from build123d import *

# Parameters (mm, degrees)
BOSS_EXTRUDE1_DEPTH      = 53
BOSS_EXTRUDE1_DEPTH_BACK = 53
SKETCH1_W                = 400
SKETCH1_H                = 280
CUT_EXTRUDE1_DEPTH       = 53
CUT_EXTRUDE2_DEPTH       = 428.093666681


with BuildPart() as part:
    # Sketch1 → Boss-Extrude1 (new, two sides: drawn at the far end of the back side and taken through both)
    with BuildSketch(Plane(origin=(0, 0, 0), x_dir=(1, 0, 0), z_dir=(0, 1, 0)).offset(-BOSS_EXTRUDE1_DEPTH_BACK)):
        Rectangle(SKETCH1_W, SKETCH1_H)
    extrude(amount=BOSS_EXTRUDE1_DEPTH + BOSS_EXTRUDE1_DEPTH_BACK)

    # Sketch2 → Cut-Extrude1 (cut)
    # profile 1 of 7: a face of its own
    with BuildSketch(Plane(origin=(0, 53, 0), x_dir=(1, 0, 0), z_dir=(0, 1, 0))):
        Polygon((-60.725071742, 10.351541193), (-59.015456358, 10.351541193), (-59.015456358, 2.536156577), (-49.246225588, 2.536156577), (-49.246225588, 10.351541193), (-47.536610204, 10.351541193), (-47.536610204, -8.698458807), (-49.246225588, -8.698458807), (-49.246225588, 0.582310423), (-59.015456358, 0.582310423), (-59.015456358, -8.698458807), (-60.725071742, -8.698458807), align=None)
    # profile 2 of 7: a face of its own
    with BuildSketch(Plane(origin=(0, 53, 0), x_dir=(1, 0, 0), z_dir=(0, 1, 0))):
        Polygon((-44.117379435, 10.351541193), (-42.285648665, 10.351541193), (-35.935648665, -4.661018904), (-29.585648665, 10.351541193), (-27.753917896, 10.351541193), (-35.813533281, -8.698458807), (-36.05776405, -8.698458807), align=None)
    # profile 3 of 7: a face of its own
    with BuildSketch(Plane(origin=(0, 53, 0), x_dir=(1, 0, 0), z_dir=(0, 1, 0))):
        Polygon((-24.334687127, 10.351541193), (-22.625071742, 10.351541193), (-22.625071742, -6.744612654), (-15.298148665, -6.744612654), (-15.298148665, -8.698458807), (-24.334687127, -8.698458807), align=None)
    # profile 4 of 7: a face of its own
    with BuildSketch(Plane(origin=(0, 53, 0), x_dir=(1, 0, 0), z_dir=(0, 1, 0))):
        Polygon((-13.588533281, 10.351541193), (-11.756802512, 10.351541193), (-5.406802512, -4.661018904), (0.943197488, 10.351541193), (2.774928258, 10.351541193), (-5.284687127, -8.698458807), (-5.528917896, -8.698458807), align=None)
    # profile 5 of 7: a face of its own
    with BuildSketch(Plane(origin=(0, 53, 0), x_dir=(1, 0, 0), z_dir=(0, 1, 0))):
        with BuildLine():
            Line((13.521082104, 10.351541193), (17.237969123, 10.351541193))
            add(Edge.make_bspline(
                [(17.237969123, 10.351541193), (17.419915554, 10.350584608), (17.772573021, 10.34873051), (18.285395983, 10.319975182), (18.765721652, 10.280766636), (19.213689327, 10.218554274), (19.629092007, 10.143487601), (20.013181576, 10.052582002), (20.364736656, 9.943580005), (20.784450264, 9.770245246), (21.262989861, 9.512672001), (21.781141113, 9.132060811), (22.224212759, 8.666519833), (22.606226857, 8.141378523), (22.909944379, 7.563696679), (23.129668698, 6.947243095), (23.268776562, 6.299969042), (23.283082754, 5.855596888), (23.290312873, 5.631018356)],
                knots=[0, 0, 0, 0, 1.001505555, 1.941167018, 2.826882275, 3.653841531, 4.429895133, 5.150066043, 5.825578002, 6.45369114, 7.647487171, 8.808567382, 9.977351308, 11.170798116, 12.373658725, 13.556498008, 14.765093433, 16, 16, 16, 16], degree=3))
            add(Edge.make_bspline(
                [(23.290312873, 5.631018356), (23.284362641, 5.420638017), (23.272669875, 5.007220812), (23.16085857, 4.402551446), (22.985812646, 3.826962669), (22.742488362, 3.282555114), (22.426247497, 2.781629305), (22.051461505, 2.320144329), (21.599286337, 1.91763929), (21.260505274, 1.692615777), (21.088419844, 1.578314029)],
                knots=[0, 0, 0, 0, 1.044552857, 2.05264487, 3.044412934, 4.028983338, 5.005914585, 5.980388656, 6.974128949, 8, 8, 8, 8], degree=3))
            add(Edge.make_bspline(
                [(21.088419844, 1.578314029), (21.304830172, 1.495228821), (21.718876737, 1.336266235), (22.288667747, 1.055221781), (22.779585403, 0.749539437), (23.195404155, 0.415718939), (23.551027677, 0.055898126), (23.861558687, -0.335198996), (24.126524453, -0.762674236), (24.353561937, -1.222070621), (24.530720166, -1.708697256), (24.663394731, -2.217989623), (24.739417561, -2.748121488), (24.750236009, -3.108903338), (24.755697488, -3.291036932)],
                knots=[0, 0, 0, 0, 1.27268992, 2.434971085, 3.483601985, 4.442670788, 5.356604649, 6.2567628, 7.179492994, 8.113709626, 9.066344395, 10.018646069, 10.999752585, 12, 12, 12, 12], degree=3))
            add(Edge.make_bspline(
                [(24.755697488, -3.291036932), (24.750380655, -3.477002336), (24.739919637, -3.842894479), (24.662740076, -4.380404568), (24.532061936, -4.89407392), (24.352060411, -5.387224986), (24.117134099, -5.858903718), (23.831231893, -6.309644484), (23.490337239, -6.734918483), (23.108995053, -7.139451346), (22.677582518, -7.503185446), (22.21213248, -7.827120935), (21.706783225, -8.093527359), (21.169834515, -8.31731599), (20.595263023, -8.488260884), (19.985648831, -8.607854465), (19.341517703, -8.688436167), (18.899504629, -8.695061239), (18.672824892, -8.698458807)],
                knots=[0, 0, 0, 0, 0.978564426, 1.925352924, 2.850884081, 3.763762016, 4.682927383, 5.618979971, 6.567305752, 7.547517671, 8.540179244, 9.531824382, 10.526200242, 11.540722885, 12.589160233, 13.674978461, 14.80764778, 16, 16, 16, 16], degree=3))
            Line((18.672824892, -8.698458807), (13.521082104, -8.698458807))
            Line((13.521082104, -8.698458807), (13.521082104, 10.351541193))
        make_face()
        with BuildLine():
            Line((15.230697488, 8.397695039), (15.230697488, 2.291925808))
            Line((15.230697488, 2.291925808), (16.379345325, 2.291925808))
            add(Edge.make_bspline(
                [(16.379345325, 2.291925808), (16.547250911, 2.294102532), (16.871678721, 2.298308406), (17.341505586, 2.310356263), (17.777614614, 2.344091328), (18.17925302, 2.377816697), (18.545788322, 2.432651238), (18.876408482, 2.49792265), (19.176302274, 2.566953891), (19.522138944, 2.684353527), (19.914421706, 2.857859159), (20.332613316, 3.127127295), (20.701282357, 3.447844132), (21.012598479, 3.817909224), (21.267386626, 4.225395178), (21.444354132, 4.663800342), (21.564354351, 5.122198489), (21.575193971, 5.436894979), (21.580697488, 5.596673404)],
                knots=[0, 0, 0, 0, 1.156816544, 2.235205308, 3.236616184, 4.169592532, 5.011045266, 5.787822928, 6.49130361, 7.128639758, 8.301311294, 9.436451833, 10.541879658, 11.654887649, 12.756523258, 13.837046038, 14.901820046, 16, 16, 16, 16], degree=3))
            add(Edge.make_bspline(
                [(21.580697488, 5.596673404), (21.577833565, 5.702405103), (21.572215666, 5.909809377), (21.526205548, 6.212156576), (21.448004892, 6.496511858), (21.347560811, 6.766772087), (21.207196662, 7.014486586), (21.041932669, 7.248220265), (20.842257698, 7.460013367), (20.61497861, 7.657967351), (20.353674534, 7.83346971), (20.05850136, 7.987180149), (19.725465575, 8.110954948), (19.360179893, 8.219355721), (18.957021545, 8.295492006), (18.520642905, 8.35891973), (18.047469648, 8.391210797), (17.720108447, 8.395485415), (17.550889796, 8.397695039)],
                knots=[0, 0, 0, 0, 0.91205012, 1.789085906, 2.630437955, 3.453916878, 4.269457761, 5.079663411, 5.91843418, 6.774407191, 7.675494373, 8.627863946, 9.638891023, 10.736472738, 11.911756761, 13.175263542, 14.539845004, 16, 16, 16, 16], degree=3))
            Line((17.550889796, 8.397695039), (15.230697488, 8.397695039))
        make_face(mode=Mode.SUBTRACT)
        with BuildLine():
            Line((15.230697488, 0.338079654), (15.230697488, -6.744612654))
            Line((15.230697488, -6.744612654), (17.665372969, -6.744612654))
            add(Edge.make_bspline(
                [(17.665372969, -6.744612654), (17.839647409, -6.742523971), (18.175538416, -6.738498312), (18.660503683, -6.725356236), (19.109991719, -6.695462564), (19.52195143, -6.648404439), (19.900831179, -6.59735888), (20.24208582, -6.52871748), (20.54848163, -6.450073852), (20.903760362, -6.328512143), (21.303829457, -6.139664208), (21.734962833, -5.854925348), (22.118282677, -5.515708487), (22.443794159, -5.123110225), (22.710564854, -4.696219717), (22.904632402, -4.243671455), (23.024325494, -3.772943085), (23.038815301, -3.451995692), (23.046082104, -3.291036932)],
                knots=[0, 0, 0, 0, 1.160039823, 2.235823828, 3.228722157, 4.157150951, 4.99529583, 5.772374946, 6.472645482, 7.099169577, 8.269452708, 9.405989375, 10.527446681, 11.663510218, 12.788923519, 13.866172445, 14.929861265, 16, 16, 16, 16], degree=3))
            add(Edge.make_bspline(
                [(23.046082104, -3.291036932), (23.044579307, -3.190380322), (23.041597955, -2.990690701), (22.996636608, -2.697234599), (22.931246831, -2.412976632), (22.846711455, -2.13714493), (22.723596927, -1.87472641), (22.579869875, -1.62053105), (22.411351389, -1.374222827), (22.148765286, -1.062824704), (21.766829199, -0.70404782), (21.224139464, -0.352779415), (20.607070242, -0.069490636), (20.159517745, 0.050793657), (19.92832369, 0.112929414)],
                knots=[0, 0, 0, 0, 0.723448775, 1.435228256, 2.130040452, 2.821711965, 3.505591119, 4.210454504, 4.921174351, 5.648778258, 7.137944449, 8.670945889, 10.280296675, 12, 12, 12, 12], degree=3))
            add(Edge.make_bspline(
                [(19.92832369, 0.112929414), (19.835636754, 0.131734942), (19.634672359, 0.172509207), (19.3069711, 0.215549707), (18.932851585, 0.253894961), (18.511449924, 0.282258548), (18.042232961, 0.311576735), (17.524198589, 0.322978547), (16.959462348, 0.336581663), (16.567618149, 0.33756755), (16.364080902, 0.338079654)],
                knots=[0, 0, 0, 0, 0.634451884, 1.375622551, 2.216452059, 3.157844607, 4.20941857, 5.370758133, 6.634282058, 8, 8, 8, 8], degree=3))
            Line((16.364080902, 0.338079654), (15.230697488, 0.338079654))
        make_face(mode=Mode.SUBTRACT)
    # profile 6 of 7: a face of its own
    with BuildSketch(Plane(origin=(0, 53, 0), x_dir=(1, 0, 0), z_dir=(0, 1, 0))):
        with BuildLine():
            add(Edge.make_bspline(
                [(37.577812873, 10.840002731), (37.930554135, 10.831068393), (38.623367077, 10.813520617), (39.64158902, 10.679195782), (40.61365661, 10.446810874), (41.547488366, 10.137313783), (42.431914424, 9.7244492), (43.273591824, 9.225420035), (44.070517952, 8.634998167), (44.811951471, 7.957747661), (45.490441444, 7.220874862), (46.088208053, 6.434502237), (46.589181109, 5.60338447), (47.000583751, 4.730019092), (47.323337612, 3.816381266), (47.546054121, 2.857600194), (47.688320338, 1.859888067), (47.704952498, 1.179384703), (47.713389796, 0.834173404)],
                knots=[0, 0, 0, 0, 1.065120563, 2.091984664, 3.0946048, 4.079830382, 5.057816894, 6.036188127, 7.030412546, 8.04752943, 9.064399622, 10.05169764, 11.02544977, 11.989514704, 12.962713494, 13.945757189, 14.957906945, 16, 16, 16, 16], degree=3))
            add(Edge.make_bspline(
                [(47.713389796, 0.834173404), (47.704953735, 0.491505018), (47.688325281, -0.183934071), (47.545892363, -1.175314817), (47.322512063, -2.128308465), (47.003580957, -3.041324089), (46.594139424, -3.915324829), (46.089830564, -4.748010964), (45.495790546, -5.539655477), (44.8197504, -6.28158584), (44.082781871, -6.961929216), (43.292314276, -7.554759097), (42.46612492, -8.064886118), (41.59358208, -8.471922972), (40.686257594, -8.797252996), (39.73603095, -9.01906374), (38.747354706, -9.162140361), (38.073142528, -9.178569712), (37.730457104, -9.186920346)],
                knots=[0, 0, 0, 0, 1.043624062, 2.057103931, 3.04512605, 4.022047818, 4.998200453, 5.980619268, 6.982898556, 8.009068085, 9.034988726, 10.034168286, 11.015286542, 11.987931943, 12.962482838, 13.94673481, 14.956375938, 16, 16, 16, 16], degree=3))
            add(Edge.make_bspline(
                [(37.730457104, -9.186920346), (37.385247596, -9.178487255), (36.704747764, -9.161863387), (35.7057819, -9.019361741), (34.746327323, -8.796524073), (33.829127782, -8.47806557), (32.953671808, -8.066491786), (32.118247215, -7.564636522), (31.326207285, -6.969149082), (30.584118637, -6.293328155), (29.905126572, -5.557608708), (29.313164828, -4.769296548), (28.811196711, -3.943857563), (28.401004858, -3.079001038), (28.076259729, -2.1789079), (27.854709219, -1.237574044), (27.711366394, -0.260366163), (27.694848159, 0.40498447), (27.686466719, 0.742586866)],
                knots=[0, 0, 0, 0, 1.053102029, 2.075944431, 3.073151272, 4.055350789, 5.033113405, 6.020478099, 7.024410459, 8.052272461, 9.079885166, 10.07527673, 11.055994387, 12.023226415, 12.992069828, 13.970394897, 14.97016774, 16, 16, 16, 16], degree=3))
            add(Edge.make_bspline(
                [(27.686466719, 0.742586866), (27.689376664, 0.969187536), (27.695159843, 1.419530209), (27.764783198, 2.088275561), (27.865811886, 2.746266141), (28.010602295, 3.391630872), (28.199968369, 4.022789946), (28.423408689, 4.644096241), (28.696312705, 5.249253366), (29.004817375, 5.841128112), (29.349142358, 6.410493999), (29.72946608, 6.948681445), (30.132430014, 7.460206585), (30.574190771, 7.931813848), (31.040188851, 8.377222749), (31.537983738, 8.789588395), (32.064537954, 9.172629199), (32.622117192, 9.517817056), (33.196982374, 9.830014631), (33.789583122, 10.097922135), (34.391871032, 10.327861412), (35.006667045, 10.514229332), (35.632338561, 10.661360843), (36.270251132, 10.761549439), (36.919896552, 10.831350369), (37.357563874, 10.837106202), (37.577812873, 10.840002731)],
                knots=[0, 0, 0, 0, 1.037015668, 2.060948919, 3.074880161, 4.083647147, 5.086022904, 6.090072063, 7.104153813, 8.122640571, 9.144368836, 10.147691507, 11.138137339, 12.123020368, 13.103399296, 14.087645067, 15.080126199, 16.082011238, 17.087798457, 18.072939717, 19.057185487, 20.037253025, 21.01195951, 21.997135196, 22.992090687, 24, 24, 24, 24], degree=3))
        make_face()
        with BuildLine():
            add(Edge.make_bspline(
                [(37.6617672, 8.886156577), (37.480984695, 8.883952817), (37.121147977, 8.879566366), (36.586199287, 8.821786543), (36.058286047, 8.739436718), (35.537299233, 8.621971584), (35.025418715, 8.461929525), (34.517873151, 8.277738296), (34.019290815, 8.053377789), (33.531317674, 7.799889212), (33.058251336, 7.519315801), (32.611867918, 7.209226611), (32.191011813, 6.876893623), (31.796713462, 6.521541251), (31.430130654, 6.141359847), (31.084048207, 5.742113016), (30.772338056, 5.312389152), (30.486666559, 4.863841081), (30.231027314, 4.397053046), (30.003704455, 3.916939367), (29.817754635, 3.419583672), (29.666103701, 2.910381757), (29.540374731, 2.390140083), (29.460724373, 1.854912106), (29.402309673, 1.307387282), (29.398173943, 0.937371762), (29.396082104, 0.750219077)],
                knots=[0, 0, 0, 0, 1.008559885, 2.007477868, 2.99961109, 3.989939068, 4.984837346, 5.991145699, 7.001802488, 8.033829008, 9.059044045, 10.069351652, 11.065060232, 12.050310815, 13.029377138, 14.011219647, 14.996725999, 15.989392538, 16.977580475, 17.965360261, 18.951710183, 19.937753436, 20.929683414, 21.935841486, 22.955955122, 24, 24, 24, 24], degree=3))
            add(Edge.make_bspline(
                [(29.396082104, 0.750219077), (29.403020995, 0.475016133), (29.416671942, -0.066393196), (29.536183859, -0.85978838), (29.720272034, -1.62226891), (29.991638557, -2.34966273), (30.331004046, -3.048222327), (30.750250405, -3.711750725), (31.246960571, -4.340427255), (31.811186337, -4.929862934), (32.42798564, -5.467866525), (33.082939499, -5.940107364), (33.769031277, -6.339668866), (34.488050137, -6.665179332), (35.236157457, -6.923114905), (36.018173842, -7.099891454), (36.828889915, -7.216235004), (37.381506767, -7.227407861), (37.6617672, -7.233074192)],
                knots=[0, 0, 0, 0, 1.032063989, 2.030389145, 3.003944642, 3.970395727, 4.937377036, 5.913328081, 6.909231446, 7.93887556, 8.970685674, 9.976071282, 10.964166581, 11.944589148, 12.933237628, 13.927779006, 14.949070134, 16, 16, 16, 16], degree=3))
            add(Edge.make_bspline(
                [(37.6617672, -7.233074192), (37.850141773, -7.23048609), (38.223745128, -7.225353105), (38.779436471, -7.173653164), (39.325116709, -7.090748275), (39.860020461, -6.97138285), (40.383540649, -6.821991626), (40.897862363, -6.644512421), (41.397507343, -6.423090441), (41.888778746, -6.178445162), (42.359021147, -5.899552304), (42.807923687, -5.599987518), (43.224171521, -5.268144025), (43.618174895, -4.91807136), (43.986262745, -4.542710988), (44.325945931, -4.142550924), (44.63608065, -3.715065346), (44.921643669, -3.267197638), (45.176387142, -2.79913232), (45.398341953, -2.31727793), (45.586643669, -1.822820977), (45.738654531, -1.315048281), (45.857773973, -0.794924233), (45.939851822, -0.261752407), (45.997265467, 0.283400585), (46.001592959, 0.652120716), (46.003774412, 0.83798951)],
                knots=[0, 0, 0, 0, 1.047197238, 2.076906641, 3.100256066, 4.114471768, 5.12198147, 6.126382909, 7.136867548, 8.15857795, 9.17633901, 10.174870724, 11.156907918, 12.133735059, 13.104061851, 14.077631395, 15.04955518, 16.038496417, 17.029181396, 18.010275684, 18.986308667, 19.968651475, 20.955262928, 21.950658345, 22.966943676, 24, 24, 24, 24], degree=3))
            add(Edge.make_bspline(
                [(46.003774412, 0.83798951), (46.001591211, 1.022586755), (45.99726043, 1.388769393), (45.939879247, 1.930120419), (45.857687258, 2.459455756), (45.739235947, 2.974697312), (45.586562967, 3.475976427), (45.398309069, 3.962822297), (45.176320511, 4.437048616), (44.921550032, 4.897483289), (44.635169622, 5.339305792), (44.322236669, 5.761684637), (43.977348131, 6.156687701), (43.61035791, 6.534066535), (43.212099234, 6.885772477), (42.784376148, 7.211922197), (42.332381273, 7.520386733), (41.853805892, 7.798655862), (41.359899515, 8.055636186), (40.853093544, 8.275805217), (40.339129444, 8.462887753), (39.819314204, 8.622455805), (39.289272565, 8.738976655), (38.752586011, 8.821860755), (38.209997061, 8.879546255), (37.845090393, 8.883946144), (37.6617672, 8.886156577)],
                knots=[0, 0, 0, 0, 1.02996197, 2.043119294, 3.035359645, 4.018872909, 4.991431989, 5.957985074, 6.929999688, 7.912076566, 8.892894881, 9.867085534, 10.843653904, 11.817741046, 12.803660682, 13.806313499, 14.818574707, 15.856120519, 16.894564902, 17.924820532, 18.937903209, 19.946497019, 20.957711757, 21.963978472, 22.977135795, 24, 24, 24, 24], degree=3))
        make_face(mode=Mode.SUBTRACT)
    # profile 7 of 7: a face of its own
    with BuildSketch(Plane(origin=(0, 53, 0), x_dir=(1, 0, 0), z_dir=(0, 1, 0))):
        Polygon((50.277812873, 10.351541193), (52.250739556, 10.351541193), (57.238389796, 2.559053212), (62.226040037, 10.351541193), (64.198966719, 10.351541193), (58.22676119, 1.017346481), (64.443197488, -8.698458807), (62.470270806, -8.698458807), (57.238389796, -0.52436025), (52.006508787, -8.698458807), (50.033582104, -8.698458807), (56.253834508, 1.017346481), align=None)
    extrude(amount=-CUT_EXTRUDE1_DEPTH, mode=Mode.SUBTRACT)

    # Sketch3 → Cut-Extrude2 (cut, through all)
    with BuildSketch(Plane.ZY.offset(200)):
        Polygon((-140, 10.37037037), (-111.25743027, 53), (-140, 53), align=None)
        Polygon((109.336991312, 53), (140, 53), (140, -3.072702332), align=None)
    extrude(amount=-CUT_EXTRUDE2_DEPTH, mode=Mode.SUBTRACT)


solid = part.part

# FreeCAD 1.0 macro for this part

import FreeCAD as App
import Part
import Sketcher
from FreeCAD import Vector
Q = App.Units.Quantity


def add_polygon(sketch, points):
    """Adds a closed chain of lines whose ends are joined by coincident constraints."""
    first, n = sketch.GeometryCount, len(points)
    for a, b in zip(points, points[1:] + points[:1]):
        sketch.addGeometry(Part.LineSegment(App.Vector(*a, 0), App.Vector(*b, 0)), False)
    for i in range(n):
        sketch.addConstraint(Sketcher.Constraint("Coincident", first + i, 2, first + (i + 1) % n, 1))

doc = App.newDocument("Part")
body = doc.addObject("PartDesign::Body", "Body")

# Sketch on XZ plane
sketch1 = body.newObject("Sketcher::SketchObject", "Sketch")
sketch1.AttachmentSupport = (doc.getObject("XZ_Plane"), [""])
sketch1.MapMode = "FlatFace"
add_polygon(sketch1, [(-200, -140), (-200, 140), (200, 140), (200, -140)])  # lines 0-3
sketch1.addConstraint([
    Sketcher.Constraint("Vertical", 0),
    Sketcher.Constraint("Horizontal", 1),
    Sketcher.Constraint("Vertical", 2),
    Sketcher.Constraint("Horizontal", 3),
    Sketcher.Constraint("Symmetric", 0, 2, 2, 2, -1, 1),
    Sketcher.Constraint("DistanceX", 1, 1, 1, 2, Q("400 mm")),
    Sketcher.Constraint("DistanceY", 0, 1, 0, 2, Q("280 mm")),
])
pad1 = body.newObject("PartDesign::Pad", "Pad")
pad1.Profile = sketch1
pad1.Type = "TwoLengths"
pad1.Length = 53
pad1.Length2 = 53
pad1.Reversed = True

# Sketch on XZ plane
sketch2 = body.newObject("Sketcher::SketchObject", "Sketch001")
sketch2.AttachmentSupport = (doc.getObject("XZ_Plane"), [""])
sketch2.MapMode = "FlatFace"
sketch2.AttachmentOffset = App.Placement(Vector(0, 0, -53), App.Rotation())
add_polygon(sketch2, [(-59.015456, -10.351541), (-60.725072, -10.351541), (-60.725072, 8.698459), (-59.015456, 8.698459), (-59.015456, -0.58231), (-49.246226, -0.58231), (-49.246226, 8.698459), (-47.53661, 8.698459), (-47.53661, -10.351541), (-49.246226, -10.351541), (-49.246226, -2.536157), (-59.015456, -2.536157)])  # lines 0-11
add_polygon(sketch2, [(-42.285649, -10.351541), (-44.117379, -10.351541), (-36.057764, 8.698459), (-35.813533, 8.698459), (-27.753918, -10.351541), (-29.585649, -10.351541), (-35.935649, 4.661019)])  # lines 12-18
add_polygon(sketch2, [(-22.625072, -10.351541), (-24.334687, -10.351541), (-24.334687, 8.698459), (-15.298149, 8.698459), (-15.298149, 6.744613), (-22.625072, 6.744613)])  # lines 19-24
add_polygon(sketch2, [(-11.756803, -10.351541), (-13.588533, -10.351541), (-5.528918, 8.698459), (-5.284687, 8.698459), (2.774928, -10.351541), (0.943197, -10.351541), (-5.406803, 4.661019)])  # lines 25-31
sketch2.addGeometry(Part.LineSegment(Vector(17.237969, -10.351541, 0), Vector(13.521082, -10.351541, 0)), False)  # 32
sketch2.addGeometry(Part.LineSegment(Vector(13.521082, -10.351541, 0), Vector(13.521082, 8.698459, 0)), False)  # 33
sketch2.addGeometry(Part.LineSegment(Vector(13.521082, 8.698459, 0), Vector(18.672825, 8.698459, 0)), False)  # 34
sketch2.addGeometry(Part.BSplineCurve([Vector(24.755697, 3.291037, 0), Vector(24.750381, 3.477002, 0), Vector(24.73992, 3.842894, 0), Vector(24.66274, 4.380405, 0), Vector(24.532062, 4.894074, 0), Vector(24.35206, 5.387225, 0), Vector(24.117134, 5.858904, 0), Vector(23.831232, 6.309644, 0), Vector(23.490337, 6.734918, 0), Vector(23.108995, 7.139451, 0), Vector(22.677583, 7.503185, 0), Vector(22.212132, 7.827121, 0), Vector(21.706783, 8.093527, 0), Vector(21.169835, 8.317316, 0), Vector(20.595263, 8.488261, 0), Vector(19.985649, 8.607854, 0), Vector(19.341518, 8.688436, 0), Vector(18.899505, 8.695061, 0), Vector(18.672825, 8.698459, 0)], [4, 1, 1, 1, 1, 1, 1, 1, 1, 1, 1, 1, 1, 1, 1, 1, 4], [0, 0.978564426, 1.925352924, 2.850884081, 3.763762016, 4.682927383, 5.618979971, 6.567305752, 7.547517671, 8.540179244, 9.531824382, 10.526200242, 11.540722885, 12.589160233, 13.674978461, 14.80764778, 16], False, 3, [1, 1, 1, 1, 1, 1, 1, 1, 1, 1, 1, 1, 1, 1, 1, 1, 1, 1, 1], False), False)  # 35
sketch2.addGeometry(Part.BSplineCurve([Vector(21.08842, -1.578314, 0), Vector(21.30483, -1.495229, 0), Vector(21.718877, -1.336266, 0), Vector(22.288668, -1.055222, 0), Vector(22.779585, -0.749539, 0), Vector(23.195404, -0.415719, 0), Vector(23.551028, -0.055898, 0), Vector(23.861559, 0.335199, 0), Vector(24.126524, 0.762674, 0), Vector(24.353562, 1.222071, 0), Vector(24.53072, 1.708697, 0), Vector(24.663395, 2.21799, 0), Vector(24.739418, 2.748121, 0), Vector(24.750236, 3.108903, 0), Vector(24.755697, 3.291037, 0)], [4, 1, 1, 1, 1, 1, 1, 1, 1, 1, 1, 1, 4], [0, 1.27268992, 2.434971085, 3.483601985, 4.442670788, 5.356604649, 6.2567628, 7.179492994, 8.113709626, 9.066344395, 10.018646069, 10.999752585, 12], False, 3, [1, 1, 1, 1, 1, 1, 1, 1, 1, 1, 1, 1, 1, 1, 1], False), False)  # 36
sketch2.addGeometry(Part.BSplineCurve([Vector(23.290313, -5.631018, 0), Vector(23.284363, -5.420638, 0), Vector(23.27267, -5.007221, 0), Vector(23.160859, -4.402551, 0), Vector(22.985813, -3.826963, 0), Vector(22.742488, -3.282555, 0), Vector(22.426247, -2.781629, 0), Vector(22.051462, -2.320144, 0), Vector(21.599286, -1.917639, 0), Vector(21.260505, -1.692616, 0), Vector(21.08842, -1.578314, 0)], [4, 1, 1, 1, 1, 1, 1, 1, 4], [0, 1.044552857, 2.05264487, 3.044412934, 4.028983338, 5.005914585, 5.980388656, 6.974128949, 8], False, 3, [1, 1, 1, 1, 1, 1, 1, 1, 1, 1, 1], False), False)  # 37
sketch2.addGeometry(Part.BSplineCurve([Vector(17.237969, -10.351541, 0), Vector(17.419916, -10.350585, 0), Vector(17.772573, -10.348731, 0), Vector(18.285396, -10.319975, 0), Vector(18.765722, -10.280767, 0), Vector(19.213689, -10.218554, 0), Vector(19.629092, -10.143488, 0), Vector(20.013182, -10.052582, 0), Vector(20.364737, -9.94358, 0), Vector(20.78445, -9.770245, 0), Vector(21.26299, -9.512672, 0), Vector(21.781141, -9.132061, 0), Vector(22.224213, -8.66652, 0), Vector(22.606227, -8.141379, 0), Vector(22.909944, -7.563697, 0), Vector(23.129669, -6.947243, 0), Vector(23.268777, -6.299969, 0), Vector(23.283083, -5.855597, 0), Vector(23.290313, -5.631018, 0)], [4, 1, 1, 1, 1, 1, 1, 1, 1, 1, 1, 1, 1, 1, 1, 1, 4], [0, 1.001505555, 1.941167018, 2.826882275, 3.653841531, 4.429895133, 5.150066043, 5.825578002, 6.45369114, 7.647487171, 8.808567382, 9.977351308, 11.170798116, 12.373658725, 13.556498008, 14.765093433, 16], False, 3, [1, 1, 1, 1, 1, 1, 1, 1, 1, 1, 1, 1, 1, 1, 1, 1, 1, 1, 1], False), False)  # 38
sketch2.addGeometry(Part.LineSegment(Vector(15.230697, -0.33808, 0), Vector(16.364081, -0.33808, 0)), False)  # 39
sketch2.addGeometry(Part.BSplineCurve([Vector(19.928324, -0.112929, 0), Vector(19.835637, -0.131735, 0), Vector(19.634672, -0.172509, 0), Vector(19.306971, -0.21555, 0), Vector(18.932852, -0.253895, 0), Vector(18.51145, -0.282259, 0), Vector(18.042233, -0.311577, 0), Vector(17.524199, -0.322979, 0), Vector(16.959462, -0.336582, 0), Vector(16.567618, -0.337568, 0), Vector(16.364081, -0.33808, 0)], [4, 1, 1, 1, 1, 1, 1, 1, 4], [0, 0.634451884, 1.375622551, 2.216452059, 3.157844607, 4.20941857, 5.370758133, 6.634282058, 8], False, 3, [1, 1, 1, 1, 1, 1, 1, 1, 1, 1, 1], False), False)  # 40
sketch2.addGeometry(Part.BSplineCurve([Vector(23.046082, 3.291037, 0), Vector(23.044579, 3.19038, 0), Vector(23.041598, 2.990691, 0), Vector(22.996637, 2.697235, 0), Vector(22.931247, 2.412977, 0), Vector(22.846711, 2.137145, 0), Vector(22.723597, 1.874726, 0), Vector(22.57987, 1.620531, 0), Vector(22.411351, 1.374223, 0), Vector(22.148765, 1.062825, 0), Vector(21.766829, 0.704048, 0), Vector(21.224139, 0.352779, 0), Vector(20.60707, 0.069491, 0), Vector(20.159518, -0.050794, 0), Vector(19.928324, -0.112929, 0)], [4, 1, 1, 1, 1, 1, 1, 1, 1, 1, 1, 1, 4], [0, 0.723448775, 1.435228256, 2.130040452, 2.821711965, 3.505591119, 4.210454504, 4.921174351, 5.648778258, 7.137944449, 8.670945889, 10.280296675, 12], False, 3, [1, 1, 1, 1, 1, 1, 1, 1, 1, 1, 1, 1, 1, 1, 1], False), False)  # 41
sketch2.addGeometry(Part.BSplineCurve([Vector(17.665373, 6.744613, 0), Vector(17.839647, 6.742524, 0), Vector(18.175538, 6.738498, 0), Vector(18.660504, 6.725356, 0), Vector(19.109992, 6.695463, 0), Vector(19.521951, 6.648404, 0), Vector(19.900831, 6.597359, 0), Vector(20.242086, 6.528717, 0), Vector(20.548482, 6.450074, 0), Vector(20.90376, 6.328512, 0), Vector(21.303829, 6.139664, 0), Vector(21.734963, 5.854925, 0), Vector(22.118283, 5.515708, 0), Vector(22.443794, 5.12311, 0), Vector(22.710565, 4.69622, 0), Vector(22.904632, 4.243671, 0), Vector(23.024325, 3.772943, 0), Vector(23.038815, 3.451996, 0), Vector(23.046082, 3.291037, 0)], [4, 1, 1, 1, 1, 1, 1, 1, 1, 1, 1, 1, 1, 1, 1, 1, 4], [0, 1.160039823, 2.235823828, 3.228722157, 4.157150951, 4.99529583, 5.772374946, 6.472645482, 7.099169577, 8.269452708, 9.405989375, 10.527446681, 11.663510218, 12.788923519, 13.866172445, 14.929861265, 16], False, 3, [1, 1, 1, 1, 1, 1, 1, 1, 1, 1, 1, 1, 1, 1, 1, 1, 1, 1, 1], False), False)  # 42
sketch2.addGeometry(Part.LineSegment(Vector(17.665373, 6.744613, 0), Vector(15.230697, 6.744613, 0)), False)  # 43
sketch2.addGeometry(Part.LineSegment(Vector(15.230697, 6.744613, 0), Vector(15.230697, -0.33808, 0)), False)  # 44
sketch2.addGeometry(Part.LineSegment(Vector(15.230697, -8.397695, 0), Vector(17.55089, -8.397695, 0)), False)  # 45
sketch2.addGeometry(Part.BSplineCurve([Vector(21.580697, -5.596673, 0), Vector(21.577834, -5.702405, 0), Vector(21.572216, -5.909809, 0), Vector(21.526206, -6.212157, 0), Vector(21.448005, -6.496512, 0), Vector(21.347561, -6.766772, 0), Vector(21.207197, -7.014487, 0), Vector(21.041933, -7.24822, 0), Vector(20.842258, -7.460013, 0), Vector(20.614979, -7.657967, 0), Vector(20.353675, -7.83347, 0), Vector(20.058501, -7.98718, 0), Vector(19.725466, -8.110955, 0), Vector(19.36018, -8.219356, 0), Vector(18.957022, -8.295492, 0), Vector(18.520643, -8.35892, 0), Vector(18.04747, -8.391211, 0), Vector(17.720108, -8.395485, 0), Vector(17.55089, -8.397695, 0)], [4, 1, 1, 1, 1, 1, 1, 1, 1, 1, 1, 1, 1, 1, 1, 1, 4], [0, 0.91205012, 1.789085906, 2.630437955, 3.453916878, 4.269457761, 5.079663411, 5.91843418, 6.774407191, 7.675494373, 8.627863946, 9.638891023, 10.736472738, 11.911756761, 13.175263542, 14.539845004, 16], False, 3, [1, 1, 1, 1, 1, 1, 1, 1, 1, 1, 1, 1, 1, 1, 1, 1, 1, 1, 1], False), False)  # 46
sketch2.addGeometry(Part.BSplineCurve([Vector(16.379345, -2.291926, 0), Vector(16.547251, -2.294103, 0), Vector(16.871679, -2.298308, 0), Vector(17.341506, -2.310356, 0), Vector(17.777615, -2.344091, 0), Vector(18.179253, -2.377817, 0), Vector(18.545788, -2.432651, 0), Vector(18.876408, -2.497923, 0), Vector(19.176302, -2.566954, 0), Vector(19.522139, -2.684354, 0), Vector(19.914422, -2.857859, 0), Vector(20.332613, -3.127127, 0), Vector(20.701282, -3.447844, 0), Vector(21.012598, -3.817909, 0), Vector(21.267387, -4.225395, 0), Vector(21.444354, -4.6638, 0), Vector(21.564354, -5.122198, 0), Vector(21.575194, -5.436895, 0), Vector(21.580697, -5.596673, 0)], [4, 1, 1, 1, 1, 1, 1, 1, 1, 1, 1, 1, 1, 1, 1, 1, 4], [0, 1.156816544, 2.235205308, 3.236616184, 4.169592532, 5.011045266, 5.787822928, 6.49130361, 7.128639758, 8.301311294, 9.436451833, 10.541879658, 11.654887649, 12.756523258, 13.837046038, 14.901820046, 16], False, 3, [1, 1, 1, 1, 1, 1, 1, 1, 1, 1, 1, 1, 1, 1, 1, 1, 1, 1, 1], False), False)  # 47
sketch2.addGeometry(Part.LineSegment(Vector(16.379345, -2.291926, 0), Vector(15.230697, -2.291926, 0)), False)  # 48
sketch2.addGeometry(Part.LineSegment(Vector(15.230697, -2.291926, 0), Vector(15.230697, -8.397695, 0)), False)  # 49
sketch2.addGeometry(Part.BSplineCurve([Vector(37.577813, -10.840003, 0), Vector(37.930554, -10.831068, 0), Vector(38.623367, -10.813521, 0), Vector(39.641589, -10.679196, 0), Vector(40.613657, -10.446811, 0), Vector(41.547488, -10.137314, 0), Vector(42.431914, -9.724449, 0), Vector(43.273592, -9.22542, 0), Vector(44.070518, -8.634998, 0), Vector(44.811951, -7.957748, 0), Vector(45.490441, -7.220875, 0), Vector(46.088208, -6.434502, 0), Vector(46.589181, -5.603384, 0), Vector(47.000584, -4.730019, 0), Vector(47.323338, -3.816381, 0), Vector(47.546054, -2.8576, 0), Vector(47.68832, -1.859888, 0), Vector(47.704952, -1.179385, 0), Vector(47.71339, -0.834173, 0)], [4, 1, 1, 1, 1, 1, 1, 1, 1, 1, 1, 1, 1, 1, 1, 1, 4], [0, 1.065120563, 2.091984664, 3.0946048, 4.079830382, 5.057816894, 6.036188127, 7.030412546, 8.04752943, 9.064399622, 10.05169764, 11.02544977, 11.989514704, 12.962713494, 13.945757189, 14.957906945, 16], False, 3, [1, 1, 1, 1, 1, 1, 1, 1, 1, 1, 1, 1, 1, 1, 1, 1, 1, 1, 1], False), False)  # 50
sketch2.addGeometry(Part.BSplineCurve([Vector(27.686467, -0.742587, 0), Vector(27.689377, -0.969188, 0), Vector(27.69516, -1.41953, 0), Vector(27.764783, -2.088276, 0), Vector(27.865812, -2.746266, 0), Vector(28.010602, -3.391631, 0), Vector(28.199968, -4.02279, 0), Vector(28.423409, -4.644096, 0), Vector(28.696313, -5.249253, 0), Vector(29.004817, -5.841128, 0), Vector(29.349142, -6.410494, 0), Vector(29.729466, -6.948681, 0), Vector(30.13243, -7.460207, 0), Vector(30.574191, -7.931814, 0), Vector(31.040189, -8.377223, 0), Vector(31.537984, -8.789588, 0), Vector(32.064538, -9.172629, 0), Vector(32.622117, -9.517817, 0), Vector(33.196982, -9.830015, 0), Vector(33.789583, -10.097922, 0), Vector(34.391871, -10.327861, 0), Vector(35.006667, -10.514229, 0), Vector(35.632339, -10.661361, 0), Vector(36.270251, -10.761549, 0), Vector(36.919897, -10.83135, 0), Vector(37.357564, -10.837106, 0), Vector(37.577813, -10.840003, 0)], [4, 1, 1, 1, 1, 1, 1, 1, 1, 1, 1, 1, 1, 1, 1, 1, 1, 1, 1, 1, 1, 1, 1, 1, 4], [0, 1.037015668, 2.060948919, 3.074880161, 4.083647147, 5.086022904, 6.090072063, 7.104153813, 8.122640571, 9.144368836, 10.147691507, 11.138137339, 12.123020368, 13.103399296, 14.087645067, 15.080126199, 16.082011238, 17.087798457, 18.072939717, 19.057185487, 20.037253025, 21.01195951, 21.997135196, 22.992090687, 24], False, 3, [1, 1, 1, 1, 1, 1, 1, 1, 1, 1, 1, 1, 1, 1, 1, 1, 1, 1, 1, 1, 1, 1, 1, 1, 1, 1, 1], False), False)  # 51
sketch2.addGeometry(Part.BSplineCurve([Vector(37.730457, 9.18692, 0), Vector(37.385248, 9.178487, 0), Vector(36.704748, 9.161863, 0), Vector(35.705782, 9.019362, 0), Vector(34.746327, 8.796524, 0), Vector(33.829128, 8.478066, 0), Vector(32.953672, 8.066492, 0), Vector(32.118247, 7.564637, 0), Vector(31.326207, 6.969149, 0), Vector(30.584119, 6.293328, 0), Vector(29.905127, 5.557609, 0), Vector(29.313165, 4.769297, 0), Vector(28.811197, 3.943858, 0), Vector(28.401005, 3.079001, 0), Vector(28.07626, 2.178908, 0), Vector(27.854709, 1.237574, 0), Vector(27.711366, 0.260366, 0), Vector(27.694848, -0.404984, 0), Vector(27.686467, -0.742587, 0)], [4, 1, 1, 1, 1, 1, 1, 1, 1, 1, 1, 1, 1, 1, 1, 1, 4], [0, 1.053102029, 2.075944431, 3.073151272, 4.055350789, 5.033113405, 6.020478099, 7.024410459, 8.052272461, 9.079885166, 10.07527673, 11.055994387, 12.023226415, 12.992069828, 13.970394897, 14.97016774, 16], False, 3, [1, 1, 1, 1, 1, 1, 1, 1, 1, 1, 1, 1, 1, 1, 1, 1, 1, 1, 1], False), False)  # 52
sketch2.addGeometry(Part.BSplineCurve([Vector(47.71339, -0.834173, 0), Vector(47.704954, -0.491505, 0), Vector(47.688325, 0.183934, 0), Vector(47.545892, 1.175315, 0), Vector(47.322512, 2.128308, 0), Vector(47.003581, 3.041324, 0), Vector(46.594139, 3.915325, 0), Vector(46.089831, 4.748011, 0), Vector(45.495791, 5.539655, 0), Vector(44.81975, 6.281586, 0), Vector(44.082782, 6.961929, 0), Vector(43.292314, 7.554759, 0), Vector(42.466125, 8.064886, 0), Vector(41.593582, 8.471923, 0), Vector(40.686258, 8.797253, 0), Vector(39.736031, 9.019064, 0), Vector(38.747355, 9.16214, 0), Vector(38.073143, 9.17857, 0), Vector(37.730457, 9.18692, 0)], [4, 1, 1, 1, 1, 1, 1, 1, 1, 1, 1, 1, 1, 1, 1, 1, 4], [0, 1.043624062, 2.057103931, 3.04512605, 4.022047818, 4.998200453, 5.980619268, 6.982898556, 8.009068085, 9.034988726, 10.034168286, 11.015286542, 11.987931943, 12.962482838, 13.94673481, 14.956375938, 16], False, 3, [1, 1, 1, 1, 1, 1, 1, 1, 1, 1, 1, 1, 1, 1, 1, 1, 1, 1, 1], False), False)  # 53
sketch2.addGeometry(Part.BSplineCurve([Vector(46.003774, -0.83799, 0), Vector(46.001591, -1.022587, 0), Vector(45.99726, -1.388769, 0), Vector(45.939879, -1.93012, 0), Vector(45.857687, -2.459456, 0), Vector(45.739236, -2.974697, 0), Vector(45.586563, -3.475976, 0), Vector(45.398309, -3.962822, 0), Vector(45.176321, -4.437049, 0), Vector(44.92155, -4.897483, 0), Vector(44.63517, -5.339306, 0), Vector(44.322237, -5.761685, 0), Vector(43.977348, -6.156688, 0), Vector(43.610358, -6.534067, 0), Vector(43.212099, -6.885772, 0), Vector(42.784376, -7.211922, 0), Vector(42.332381, -7.520387, 0), Vector(41.853806, -7.798656, 0), Vector(41.3599, -8.055636, 0), Vector(40.853094, -8.275805, 0), Vector(40.339129, -8.462888, 0), Vector(39.819314, -8.622456, 0), Vector(39.289273, -8.738977, 0), Vector(38.752586, -8.821861, 0), Vector(38.209997, -8.879546, 0), Vector(37.84509, -8.883946, 0), Vector(37.661767, -8.886157, 0)], [4, 1, 1, 1, 1, 1, 1, 1, 1, 1, 1, 1, 1, 1, 1, 1, 1, 1, 1, 1, 1, 1, 1, 1, 4], [0, 1.02996197, 2.043119294, 3.035359645, 4.018872909, 4.991431989, 5.957985074, 6.929999688, 7.912076566, 8.892894881, 9.867085534, 10.843653904, 11.817741046, 12.803660682, 13.806313499, 14.818574707, 15.856120519, 16.894564902, 17.924820532, 18.937903209, 19.946497019, 20.957711757, 21.963978472, 22.977135795, 24], False, 3, [1, 1, 1, 1, 1, 1, 1, 1, 1, 1, 1, 1, 1, 1, 1, 1, 1, 1, 1, 1, 1, 1, 1, 1, 1, 1, 1], False), False)  # 54
sketch2.addGeometry(Part.BSplineCurve([Vector(37.661767, 7.233074, 0), Vector(37.850142, 7.230486, 0), Vector(38.223745, 7.225353, 0), Vector(38.779436, 7.173653, 0), Vector(39.325117, 7.090748, 0), Vector(39.86002, 6.971383, 0), Vector(40.383541, 6.821992, 0), Vector(40.897862, 6.644512, 0), Vector(41.397507, 6.42309, 0), Vector(41.888779, 6.178445, 0), Vector(42.359021, 5.899552, 0), Vector(42.807924, 5.599988, 0), Vector(43.224172, 5.268144, 0), Vector(43.618175, 4.918071, 0), Vector(43.986263, 4.542711, 0), Vector(44.325946, 4.142551, 0), Vector(44.636081, 3.715065, 0), Vector(44.921644, 3.267198, 0), Vector(45.176387, 2.799132, 0), Vector(45.398342, 2.317278, 0), Vector(45.586644, 1.822821, 0), Vector(45.738655, 1.315048, 0), Vector(45.857774, 0.794924, 0), Vector(45.939852, 0.261752, 0), Vector(45.997265, -0.283401, 0), Vector(46.001593, -0.652121, 0), Vector(46.003774, -0.83799, 0)], [4, 1, 1, 1, 1, 1, 1, 1, 1, 1, 1, 1, 1, 1, 1, 1, 1, 1, 1, 1, 1, 1, 1, 1, 4], [0, 1.047197238, 2.076906641, 3.100256066, 4.114471768, 5.12198147, 6.126382909, 7.136867548, 8.15857795, 9.17633901, 10.174870724, 11.156907918, 12.133735059, 13.104061851, 14.077631395, 15.04955518, 16.038496417, 17.029181396, 18.010275684, 18.986308667, 19.968651475, 20.955262928, 21.950658345, 22.966943676, 24], False, 3, [1, 1, 1, 1, 1, 1, 1, 1, 1, 1, 1, 1, 1, 1, 1, 1, 1, 1, 1, 1, 1, 1, 1, 1, 1, 1, 1], False), False)  # 55
sketch2.addGeometry(Part.BSplineCurve([Vector(29.396082, -0.750219, 0), Vector(29.403021, -0.475016, 0), Vector(29.416672, 0.066393, 0), Vector(29.536184, 0.859788, 0), Vector(29.720272, 1.622269, 0), Vector(29.991639, 2.349663, 0), Vector(30.331004, 3.048222, 0), Vector(30.75025, 3.711751, 0), Vector(31.246961, 4.340427, 0), Vector(31.811186, 4.929863, 0), Vector(32.427986, 5.467867, 0), Vector(33.082939, 5.940107, 0), Vector(33.769031, 6.339669, 0), Vector(34.48805, 6.665179, 0), Vector(35.236157, 6.923115, 0), Vector(36.018174, 7.099891, 0), Vector(36.82889, 7.216235, 0), Vector(37.381507, 7.227408, 0), Vector(37.661767, 7.233074, 0)], [4, 1, 1, 1, 1, 1, 1, 1, 1, 1, 1, 1, 1, 1, 1, 1, 4], [0, 1.032063989, 2.030389145, 3.003944642, 3.970395727, 4.937377036, 5.913328081, 6.909231446, 7.93887556, 8.970685674, 9.976071282, 10.964166581, 11.944589148, 12.933237628, 13.927779006, 14.949070134, 16], False, 3, [1, 1, 1, 1, 1, 1, 1, 1, 1, 1, 1, 1, 1, 1, 1, 1, 1, 1, 1], False), False)  # 56
sketch2.addGeometry(Part.BSplineCurve([Vector(37.661767, -8.886157, 0), Vector(37.480985, -8.883953, 0), Vector(37.121148, -8.879566, 0), Vector(36.586199, -8.821787, 0), Vector(36.058286, -8.739437, 0), Vector(35.537299, -8.621972, 0), Vector(35.025419, -8.46193, 0), Vector(34.517873, -8.277738, 0), Vector(34.019291, -8.053378, 0), Vector(33.531318, -7.799889, 0), Vector(33.058251, -7.519316, 0), Vector(32.611868, -7.209227, 0), Vector(32.191012, -6.876894, 0), Vector(31.796713, -6.521541, 0), Vector(31.430131, -6.14136, 0), Vector(31.084048, -5.742113, 0), Vector(30.772338, -5.312389, 0), Vector(30.486667, -4.863841, 0), Vector(30.231027, -4.397053, 0), Vector(30.003704, -3.916939, 0), Vector(29.817755, -3.419584, 0), Vector(29.666104, -2.910382, 0), Vector(29.540375, -2.39014, 0), Vector(29.460724, -1.854912, 0), Vector(29.40231, -1.307387, 0), Vector(29.398174, -0.937372, 0), Vector(29.396082, -0.750219, 0)], [4, 1, 1, 1, 1, 1, 1, 1, 1, 1, 1, 1, 1, 1, 1, 1, 1, 1, 1, 1, 1, 1, 1, 1, 4], [0, 1.008559885, 2.007477868, 2.99961109, 3.989939068, 4.984837346, 5.991145699, 7.001802488, 8.033829008, 9.059044045, 10.069351652, 11.065060232, 12.050310815, 13.029377138, 14.011219647, 14.996725999, 15.989392538, 16.977580475, 17.965360261, 18.951710183, 19.937753436, 20.929683414, 21.935841486, 22.955955122, 24], False, 3, [1, 1, 1, 1, 1, 1, 1, 1, 1, 1, 1, 1, 1, 1, 1, 1, 1, 1, 1, 1, 1, 1, 1, 1, 1, 1, 1], False), False)  # 57
add_polygon(sketch2, [(52.25074, -10.351541), (50.277813, -10.351541), (56.253835, -1.017346), (50.033582, 8.698459), (52.006509, 8.698459), (57.23839, 0.52436), (62.470271, 8.698459), (64.443197, 8.698459), (58.226761, -1.017346), (64.198967, -10.351541), (62.22604, -10.351541), (57.23839, -2.559053)])  # lines 58-69
sketch2.addConstraint([
    Sketcher.Constraint("Block", 35),
    Sketcher.Constraint("Block", 36),
    Sketcher.Constraint("Block", 37),
    Sketcher.Constraint("Block", 38),
    Sketcher.Constraint("Block", 40),
    Sketcher.Constraint("Block", 41),
    Sketcher.Constraint("Block", 42),
    Sketcher.Constraint("Block", 46),
    Sketcher.Constraint("Block", 47),
    Sketcher.Constraint("Block", 50),
    Sketcher.Constraint("Block", 51),
    Sketcher.Constraint("Block", 52),
    Sketcher.Constraint("Block", 53),
    Sketcher.Constraint("Block", 54),
    Sketcher.Constraint("Block", 55),
    Sketcher.Constraint("Block", 56),
    Sketcher.Constraint("Block", 57),
    Sketcher.Constraint("Coincident", 32, 2, 33, 1),
    Sketcher.Constraint("Coincident", 33, 2, 34, 1),
    Sketcher.Constraint("Coincident", 34, 2, 35, 2),
    Sketcher.Constraint("Coincident", 38, 1, 32, 1),
    Sketcher.Constraint("Coincident", 39, 2, 40, 2),
    Sketcher.Constraint("Coincident", 42, 1, 43, 1),
    Sketcher.Constraint("Coincident", 43, 2, 44, 1),
    Sketcher.Constraint("Coincident", 44, 2, 39, 1),
    Sketcher.Constraint("Coincident", 45, 2, 46, 2),
    Sketcher.Constraint("Coincident", 47, 1, 48, 1),
    Sketcher.Constraint("Coincident", 48, 2, 49, 1),
    Sketcher.Constraint("Coincident", 49, 2, 45, 1),
    Sketcher.Constraint("Horizontal", 0),
    Sketcher.Constraint("Vertical", 1),
    Sketcher.Constraint("Horizontal", 2),
    Sketcher.Constraint("Vertical", 3),
    Sketcher.Constraint("Horizontal", 4),
    Sketcher.Constraint("Vertical", 5),
    Sketcher.Constraint("Horizontal", 6),
    Sketcher.Constraint("Vertical", 7),
    Sketcher.Constraint("Horizontal", 8),
    Sketcher.Constraint("Vertical", 9),
    Sketcher.Constraint("Horizontal", 10),
    Sketcher.Constraint("Vertical", 11),
    Sketcher.Constraint("Horizontal", 12),
    Sketcher.Constraint("Horizontal", 14),
    Sketcher.Constraint("Horizontal", 16),
    Sketcher.Constraint("Horizontal", 19),
    Sketcher.Constraint("Vertical", 20),
    Sketcher.Constraint("Horizontal", 21),
    Sketcher.Constraint("Vertical", 22),
    Sketcher.Constraint("Horizontal", 23),
    Sketcher.Constraint("Vertical", 24),
    Sketcher.Constraint("Horizontal", 25),
    Sketcher.Constraint("Horizontal", 27),
    Sketcher.Constraint("Horizontal", 29),
    Sketcher.Constraint("Horizontal", 32),
    Sketcher.Constraint("Vertical", 33),
    Sketcher.Constraint("Horizontal", 34),
    Sketcher.Constraint("Horizontal", 39),
    Sketcher.Constraint("Horizontal", 43),
    Sketcher.Constraint("Vertical", 44),
    Sketcher.Constraint("Horizontal", 45),
    Sketcher.Constraint("Horizontal", 48),
    Sketcher.Constraint("Vertical", 49),
    Sketcher.Constraint("Horizontal", 58),
    Sketcher.Constraint("Horizontal", 61),
    Sketcher.Constraint("Horizontal", 64),
    Sketcher.Constraint("Horizontal", 67),
    Sketcher.Constraint("DistanceY", 1, 1, 1, 2, Q("19.05 mm")),
    Sketcher.Constraint("DistanceY", 7, 2, 7, 1, Q("19.05 mm")),
    Sketcher.Constraint("DistanceY", 20, 1, 20, 2, Q("19.05 mm")),
    Sketcher.Constraint("DistanceX", 24, 2, 28, 2, Q("25.4 mm")),
    Sketcher.Constraint("DistanceX", 31, 2, 29, 2, Q("12.7 mm")),
    Sketcher.Constraint("DistanceY", 0, 2, 5, 2, Q("19.05 mm")),
    Sketcher.Constraint("DistanceY", 12, 2, 13, 2, Q("19.05 mm")),
    Sketcher.Constraint("DistanceY", 15, 2, 14, 2, Q("19.05 mm")),
    Sketcher.Constraint("DistanceY", 15, 2, 20, 2, Q("19.05 mm")),
    Sketcher.Constraint("DistanceY", 25, 2, 26, 2, Q("19.05 mm")),
    Sketcher.Constraint("DistanceX", 20, 2, 27, 2, Q("19.05 mm")),
    Sketcher.Constraint("DistanceY", 28, 2, 27, 2, Q("19.05 mm")),
    Sketcher.Constraint("DistanceX", 30, 2, 29, 2, Q("6.35 mm")),
    Sketcher.Constraint("DistanceY", 32, 2, 27, 2, Q("19.05 mm")),
    Sketcher.Constraint("DistanceX", 26, 2, 33, 2, Q("19.05 mm")),
    Sketcher.Constraint("DistanceY", 58, 2, 60, 2, Q("19.05 mm")),
    Sketcher.Constraint("DistanceY", 58, 2, 63, 2, Q("19.05 mm")),
    Sketcher.Constraint("DistanceY", 66, 2, 64, 2, Q("19.05 mm")),
    Sketcher.Constraint("Distance", 68, Q("9.252001 mm")),
    Sketcher.Constraint("Distance", 69, Q("9.252001 mm")),
    Sketcher.Constraint("DistanceX", 33, 2, 39, 2, Q("2.842999 mm")),
    Sketcher.Constraint("DistanceX", 4, 1, 4, 2, Q("9.769231 mm")),
    Sketcher.Constraint("DistanceX", 10, 2, 10, 1, Q("9.769231 mm")),
    Sketcher.Constraint("DistanceX", 12, 2, 12, 1, Q("1.831731 mm")),
    Sketcher.Constraint("DistanceX", 14, 1, 14, 2, Q("0.244231 mm")),
    Sketcher.Constraint("DistanceX", 16, 2, 16, 1, Q("1.831731 mm")),
    Sketcher.Constraint("DistanceX", 21, 1, 21, 2, Q("9.036538 mm")),
    Sketcher.Constraint("DistanceX", 25, 2, 25, 1, Q("1.831731 mm")),
    Sketcher.Constraint("DistanceX", 27, 1, 27, 2, Q("0.244231 mm")),
    Sketcher.Constraint("DistanceX", 29, 2, 29, 1, Q("1.831731 mm")),
    Sketcher.Constraint("DistanceY", 3, 2, 3, 1, Q("9.280769 mm")),
    Sketcher.Constraint("DistanceX", 17, 2, 21, 2, Q("20.6375 mm")),
    Sketcher.Constraint("DistanceX", 39, 2, 60, 2, Q("33.669501 mm")),
    Sketcher.Constraint("DistanceY", 62, 2, 61, 2, Q("8.174099 mm")),
    Sketcher.Constraint("DistanceY", 62, 2, 34, 2, Q("8.174099 mm")),
    Sketcher.Constraint("DistanceX", 69, 2, 67, 2, Q("9.9753 mm")),
    Sketcher.Constraint("Distance", 17, Q("16.30029 mm")),
    Sketcher.Constraint("Distance", 18, Q("16.30029 mm")),
    Sketcher.Constraint("Distance", 30, Q("16.30029 mm")),
    Sketcher.Constraint("Distance", 59, Q("11.083322 mm")),
    Sketcher.Constraint("DistanceX", 0, 2, 0, 1, Q("1.709615 mm")),
    Sketcher.Constraint("DistanceX", 2, 1, 2, 2, Q("1.709615 mm")),
    Sketcher.Constraint("DistanceX", 6, 1, 6, 2, Q("1.709615 mm")),
    Sketcher.Constraint("DistanceX", 19, 2, 19, 1, Q("1.709615 mm")),
    Sketcher.Constraint("DistanceX", 39, 1, 39, 2, Q("1.133383 mm")),
    Sketcher.Constraint("DistanceX", 45, 1, 45, 2, Q("2.320192 mm")),
    Sketcher.Constraint("DistanceX", 58, 2, 58, 1, Q("1.972927 mm")),
    Sketcher.Constraint("DistanceX", 61, 1, 61, 2, Q("1.972927 mm")),
    Sketcher.Constraint("DistanceX", 64, 1, 64, 2, Q("1.972927 mm")),
    Sketcher.Constraint("DistanceX", 67, 2, 67, 1, Q("1.972927 mm")),
    Sketcher.Constraint("DistanceY", 9, 1, 9, 2, Q("7.815385 mm")),
    Sketcher.Constraint("DistanceY", 22, 2, 22, 1, Q("1.953846 mm")),
    Sketcher.Constraint("DistanceX", 0, 2, -1, 1, Q("60.725072 mm")),
    Sketcher.Constraint("DistanceY", 0, 2, -1, 1, Q("10.351541 mm")),
    Sketcher.Constraint("DistanceX", 12, 2, -1, 1, Q("44.117379 mm")),
    Sketcher.Constraint("DistanceY", 12, 2, -1, 1, Q("10.351541 mm")),
    Sketcher.Constraint("DistanceX", -1, 1, 62, 2, Q("57.23839 mm")),
    Sketcher.Constraint("DistanceX", -1, 1, 63, 2, Q("62.470271 mm")),
    Sketcher.Constraint("DistanceX", -1, 1, 65, 2, Q("58.226761 mm")),
    Sketcher.Constraint("DistanceX", -1, 1, 67, 2, Q("62.22604 mm")),
    Sketcher.Constraint("DistanceX", 5, 2, 13, 2, Q("13.188462 mm")),
    Sketcher.Constraint("DistanceX", 58, 2, 59, 2, Q("5.976022 mm")),
    Sketcher.Constraint("Distance", 65, Q("11.534338 mm")),
])
pocket1 = body.newObject("PartDesign::Pocket", "Pocket")
pocket1.Profile = sketch2
pocket1.Length = 53
pocket1.Reversed = True

# Sketch on YZ plane
sketch3 = body.newObject("Sketcher::SketchObject", "Sketch002")
sketch3.AttachmentSupport = (doc.getObject("YZ_Plane"), [""])
sketch3.MapMode = "FlatFace"
sketch3.AttachmentOffset = App.Placement(Vector(0, 0, -200), App.Rotation())
add_polygon(sketch3, [(10.37037, -140), (53, -111.25743), (53, -140)])  # lines 0-2
add_polygon(sketch3, [(53, 140), (53, 109.336991), (-3.072702, 140)])  # lines 3-5
sketch3.addConstraint([
    Sketcher.Constraint("Vertical", 1),
    Sketcher.Constraint("Horizontal", 2),
    Sketcher.Constraint("Vertical", 3),
    Sketcher.Constraint("Horizontal", 5),
    Sketcher.Constraint("Symmetric", 1, 2, 5, 2, -1),
    Sketcher.Constraint("DistanceX", -1, 1, 0, 2, Q("53 mm")),
    Sketcher.Constraint("DistanceY", 1, 2, -1, 1, Q("140 mm")),
    Sketcher.Constraint("DistanceX", 2, 2, 2, 1, Q("42.62963 mm")),
    Sketcher.Constraint("DistanceY", 1, 2, 1, 1, Q("28.74257 mm")),
    Sketcher.Constraint("DistanceY", 3, 2, 3, 1, Q("30.663009 mm")),
    Sketcher.Constraint("Distance", 4, Q("63.909061 mm")),
])
pocket2 = body.newObject("PartDesign::Pocket", "Pocket001")
pocket2.Profile = sketch3
pocket2.Type = "ThroughAll"
pocket2.Reversed = True

doc.recompute()
